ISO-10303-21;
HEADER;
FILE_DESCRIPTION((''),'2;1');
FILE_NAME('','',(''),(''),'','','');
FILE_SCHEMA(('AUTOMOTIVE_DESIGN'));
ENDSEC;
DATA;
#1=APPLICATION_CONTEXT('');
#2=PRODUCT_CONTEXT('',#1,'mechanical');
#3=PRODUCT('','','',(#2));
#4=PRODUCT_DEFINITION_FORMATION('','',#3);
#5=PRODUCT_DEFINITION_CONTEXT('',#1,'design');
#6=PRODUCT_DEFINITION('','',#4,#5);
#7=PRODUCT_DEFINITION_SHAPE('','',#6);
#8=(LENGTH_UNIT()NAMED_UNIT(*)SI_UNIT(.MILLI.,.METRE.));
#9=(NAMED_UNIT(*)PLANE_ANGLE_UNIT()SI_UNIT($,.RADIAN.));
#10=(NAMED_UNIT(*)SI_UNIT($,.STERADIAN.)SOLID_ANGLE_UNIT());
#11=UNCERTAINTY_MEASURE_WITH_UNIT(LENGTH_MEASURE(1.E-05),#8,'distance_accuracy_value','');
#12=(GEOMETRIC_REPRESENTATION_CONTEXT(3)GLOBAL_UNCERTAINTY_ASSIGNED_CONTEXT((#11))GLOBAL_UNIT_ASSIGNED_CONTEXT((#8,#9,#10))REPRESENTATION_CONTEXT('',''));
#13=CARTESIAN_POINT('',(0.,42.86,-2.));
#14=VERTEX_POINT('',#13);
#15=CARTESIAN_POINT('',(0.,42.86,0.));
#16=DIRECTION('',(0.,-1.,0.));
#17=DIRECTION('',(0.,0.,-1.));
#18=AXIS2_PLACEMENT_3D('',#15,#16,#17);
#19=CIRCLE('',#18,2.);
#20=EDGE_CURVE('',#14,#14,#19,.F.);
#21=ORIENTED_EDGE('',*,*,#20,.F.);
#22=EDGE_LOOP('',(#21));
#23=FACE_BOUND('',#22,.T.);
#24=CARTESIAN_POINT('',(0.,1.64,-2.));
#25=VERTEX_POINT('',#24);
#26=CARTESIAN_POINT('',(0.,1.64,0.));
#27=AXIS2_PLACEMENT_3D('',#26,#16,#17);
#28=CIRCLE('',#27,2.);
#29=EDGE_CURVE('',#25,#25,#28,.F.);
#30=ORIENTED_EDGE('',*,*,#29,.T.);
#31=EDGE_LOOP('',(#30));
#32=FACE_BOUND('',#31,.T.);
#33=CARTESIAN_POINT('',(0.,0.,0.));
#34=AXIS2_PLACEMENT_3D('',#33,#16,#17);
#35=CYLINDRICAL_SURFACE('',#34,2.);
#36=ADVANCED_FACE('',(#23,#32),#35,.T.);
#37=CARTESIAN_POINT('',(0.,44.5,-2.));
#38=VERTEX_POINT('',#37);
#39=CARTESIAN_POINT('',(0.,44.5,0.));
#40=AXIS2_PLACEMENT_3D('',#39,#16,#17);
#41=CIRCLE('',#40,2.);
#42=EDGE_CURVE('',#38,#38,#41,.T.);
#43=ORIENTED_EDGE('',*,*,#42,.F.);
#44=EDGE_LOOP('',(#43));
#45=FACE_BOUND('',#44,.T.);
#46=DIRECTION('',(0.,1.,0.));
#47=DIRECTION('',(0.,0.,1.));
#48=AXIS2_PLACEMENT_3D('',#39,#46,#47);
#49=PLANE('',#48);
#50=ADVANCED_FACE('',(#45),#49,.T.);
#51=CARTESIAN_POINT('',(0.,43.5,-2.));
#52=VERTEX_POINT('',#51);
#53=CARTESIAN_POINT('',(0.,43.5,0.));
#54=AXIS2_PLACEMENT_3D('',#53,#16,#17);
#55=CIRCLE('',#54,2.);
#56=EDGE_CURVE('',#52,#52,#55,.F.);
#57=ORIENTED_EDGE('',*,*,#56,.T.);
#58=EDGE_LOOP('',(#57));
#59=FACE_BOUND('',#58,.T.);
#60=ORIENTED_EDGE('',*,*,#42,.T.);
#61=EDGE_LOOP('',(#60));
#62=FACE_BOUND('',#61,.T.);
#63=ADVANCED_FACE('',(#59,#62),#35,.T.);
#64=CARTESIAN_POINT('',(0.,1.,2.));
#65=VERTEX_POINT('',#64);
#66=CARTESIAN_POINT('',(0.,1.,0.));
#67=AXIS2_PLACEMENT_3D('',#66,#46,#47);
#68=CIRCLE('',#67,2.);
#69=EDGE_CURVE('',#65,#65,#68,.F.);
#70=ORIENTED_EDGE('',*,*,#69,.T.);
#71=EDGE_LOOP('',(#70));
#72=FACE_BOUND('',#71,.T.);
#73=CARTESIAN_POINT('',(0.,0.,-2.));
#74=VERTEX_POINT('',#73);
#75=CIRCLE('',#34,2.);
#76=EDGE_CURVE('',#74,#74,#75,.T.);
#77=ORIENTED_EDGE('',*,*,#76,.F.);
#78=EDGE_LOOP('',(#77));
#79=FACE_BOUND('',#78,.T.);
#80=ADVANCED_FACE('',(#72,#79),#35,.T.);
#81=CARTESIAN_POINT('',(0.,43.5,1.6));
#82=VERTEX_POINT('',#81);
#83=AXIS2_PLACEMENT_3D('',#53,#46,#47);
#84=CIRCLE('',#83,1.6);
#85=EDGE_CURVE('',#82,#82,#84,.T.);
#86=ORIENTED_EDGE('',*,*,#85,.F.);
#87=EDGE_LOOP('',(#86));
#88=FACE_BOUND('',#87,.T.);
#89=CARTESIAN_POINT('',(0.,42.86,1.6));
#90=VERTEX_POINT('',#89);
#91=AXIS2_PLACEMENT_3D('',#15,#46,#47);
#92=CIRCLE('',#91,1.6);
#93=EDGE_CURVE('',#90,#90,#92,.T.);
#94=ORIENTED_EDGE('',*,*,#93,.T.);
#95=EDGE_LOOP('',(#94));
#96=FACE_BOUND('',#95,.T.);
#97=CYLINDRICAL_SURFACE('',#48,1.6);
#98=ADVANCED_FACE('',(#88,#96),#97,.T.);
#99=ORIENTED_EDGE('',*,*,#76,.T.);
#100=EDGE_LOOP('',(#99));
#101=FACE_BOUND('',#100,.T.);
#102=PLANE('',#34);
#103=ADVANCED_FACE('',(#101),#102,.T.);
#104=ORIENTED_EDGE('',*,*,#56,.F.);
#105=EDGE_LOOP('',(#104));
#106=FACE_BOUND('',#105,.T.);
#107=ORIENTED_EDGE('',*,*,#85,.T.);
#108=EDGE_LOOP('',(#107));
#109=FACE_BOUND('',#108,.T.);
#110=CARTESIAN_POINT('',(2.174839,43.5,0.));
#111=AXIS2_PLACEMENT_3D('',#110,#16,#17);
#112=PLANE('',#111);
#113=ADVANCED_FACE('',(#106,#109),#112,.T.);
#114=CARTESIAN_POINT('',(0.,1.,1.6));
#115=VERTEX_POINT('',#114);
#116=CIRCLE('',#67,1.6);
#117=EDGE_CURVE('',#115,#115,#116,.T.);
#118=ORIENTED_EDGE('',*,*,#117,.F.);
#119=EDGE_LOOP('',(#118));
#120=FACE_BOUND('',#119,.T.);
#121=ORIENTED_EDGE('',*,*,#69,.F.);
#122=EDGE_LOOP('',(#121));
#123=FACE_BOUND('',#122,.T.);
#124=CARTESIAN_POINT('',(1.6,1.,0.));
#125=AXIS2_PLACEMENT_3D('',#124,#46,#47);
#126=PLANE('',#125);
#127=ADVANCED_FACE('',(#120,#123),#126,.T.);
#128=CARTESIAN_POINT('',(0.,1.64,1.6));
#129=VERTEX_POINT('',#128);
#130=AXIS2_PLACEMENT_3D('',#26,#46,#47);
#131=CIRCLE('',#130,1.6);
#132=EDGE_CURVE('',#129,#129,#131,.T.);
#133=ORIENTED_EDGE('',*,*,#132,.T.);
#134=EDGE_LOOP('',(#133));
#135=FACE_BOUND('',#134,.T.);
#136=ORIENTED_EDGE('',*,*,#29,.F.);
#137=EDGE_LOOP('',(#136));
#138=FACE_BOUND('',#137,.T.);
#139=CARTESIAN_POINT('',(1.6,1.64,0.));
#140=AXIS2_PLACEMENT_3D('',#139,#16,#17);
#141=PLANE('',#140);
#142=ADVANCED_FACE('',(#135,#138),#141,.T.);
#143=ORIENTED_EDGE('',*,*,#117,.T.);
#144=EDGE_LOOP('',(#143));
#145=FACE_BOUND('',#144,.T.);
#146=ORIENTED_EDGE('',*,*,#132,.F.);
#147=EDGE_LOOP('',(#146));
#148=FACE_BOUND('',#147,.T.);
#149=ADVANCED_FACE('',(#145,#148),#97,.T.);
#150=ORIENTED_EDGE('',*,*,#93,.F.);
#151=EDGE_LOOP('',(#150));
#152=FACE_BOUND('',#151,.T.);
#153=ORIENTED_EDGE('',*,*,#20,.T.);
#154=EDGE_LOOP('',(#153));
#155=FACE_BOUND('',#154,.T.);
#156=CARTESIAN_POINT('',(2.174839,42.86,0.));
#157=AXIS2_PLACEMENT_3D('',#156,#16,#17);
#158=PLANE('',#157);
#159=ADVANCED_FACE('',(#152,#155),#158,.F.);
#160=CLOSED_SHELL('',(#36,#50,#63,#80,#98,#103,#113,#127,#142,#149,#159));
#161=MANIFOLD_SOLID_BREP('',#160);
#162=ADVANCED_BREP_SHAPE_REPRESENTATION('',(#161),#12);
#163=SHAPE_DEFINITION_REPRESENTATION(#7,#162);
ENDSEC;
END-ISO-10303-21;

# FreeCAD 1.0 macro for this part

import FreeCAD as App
import Part
import Sketcher


def add_polygon(sketch, points):
    """Adds a closed chain of lines whose ends are joined by coincident constraints."""
    first, n = sketch.GeometryCount, len(points)
    for a, b in zip(points, points[1:] + points[:1]):
        sketch.addGeometry(Part.LineSegment(App.Vector(*a, 0), App.Vector(*b, 0)), False)
    for i in range(n):
        sketch.addConstraint(Sketcher.Constraint("Coincident", first + i, 2, first + (i + 1) % n, 1))

doc = App.newDocument("Part")
body = doc.addObject("PartDesign::Body", "Body")

# Sketch on XY plane
sketch1 = body.newObject("Sketcher::SketchObject", "Sketch")
sketch1.AttachmentSupport = (doc.getObject("XY_Plane"), [""])
sketch1.MapMode = "FlatFace"
add_polygon(sketch1, [(0, 44.5), (0, 0), (2, 0), (2, 44.5)])  # lines 0-3
sketch1.addConstraint([
    Sketcher.Constraint("Vertical", 0),
    Sketcher.Constraint("Horizontal", 1),
    Sketcher.Constraint("Vertical", 2),
    Sketcher.Constraint("Horizontal", 3),
    Sketcher.Constraint("Coincident", 0, 2, -1, 1),
    Sketcher.Constraint("DistanceX", 1, 1, 1, 2, 2.0),
    Sketcher.Constraint("DistanceY", 0, 2, 0, 1, 44.5),
])
revolution = body.newObject("PartDesign::Revolution", "Revolution")
revolution.Profile = sketch1
revolution.ReferenceAxis = (sketch1, ["V_Axis"])
revolution.Angle = 360

# Sketch on XY plane
sketch2 = body.newObject("Sketcher::SketchObject", "Sketch001")
sketch2.AttachmentSupport = (doc.getObject("XY_Plane"), [""])
sketch2.MapMode = "FlatFace"
add_polygon(sketch2, [(1.6, 43.5), (1.6, 42.9), (2.2, 42.9), (2.2, 43.5)])  # lines 0-3
sketch2.addConstraint([
    Sketcher.Constraint("Vertical", 0),
    Sketcher.Constraint("Horizontal", 1),
    Sketcher.Constraint("Vertical", 2),
    Sketcher.Constraint("Horizontal", 3),
    Sketcher.Constraint("DistanceY", 0, 2, 0, 1, 0.64),
    Sketcher.Constraint("DistanceX", -1, 1, 0, 2, 1.6),
    Sketcher.Constraint("DistanceY", -1, 1, 2, 2, 43.5),
    Sketcher.Constraint("DistanceX", 1, 1, 1, 2, 0.574839),
])
groove = body.newObject("PartDesign::Groove", "Groove")
groove.Profile = sketch2
groove.ReferenceAxis = (sketch2, ["V_Axis"])
groove.Angle = 360

# Sketch on XY plane
sketch3 = body.newObject("Sketcher::SketchObject", "Sketch002")
sketch3.AttachmentSupport = (doc.getObject("XY_Plane"), [""])
sketch3.MapMode = "FlatFace"
add_polygon(sketch3, [(1.6, 1.6), (1.6, 1), (2.7, 1), (2.7, 1.6)])  # lines 0-3
sketch3.addConstraint([
    Sketcher.Constraint("Vertical", 0),
    Sketcher.Constraint("Horizontal", 1),
    Sketcher.Constraint("Vertical", 2),
    Sketcher.Constraint("Horizontal", 3),
    Sketcher.Constraint("DistanceY", -1, 1, 0, 2, 1.0),
    Sketcher.Constraint("DistanceY", 0, 2, 0, 1, 0.64),
    Sketcher.Constraint("DistanceX", -1, 1, 0, 2, 1.6),
    Sketcher.Constraint("DistanceX", 1, 1, 1, 2, 1.09346),
])
groove2 = body.newObject("PartDesign::Groove", "Groove001")
groove2.Profile = sketch3
groove2.ReferenceAxis = (sketch3, ["V_Axis"])
groove2.Angle = 360

doc.recompute()
